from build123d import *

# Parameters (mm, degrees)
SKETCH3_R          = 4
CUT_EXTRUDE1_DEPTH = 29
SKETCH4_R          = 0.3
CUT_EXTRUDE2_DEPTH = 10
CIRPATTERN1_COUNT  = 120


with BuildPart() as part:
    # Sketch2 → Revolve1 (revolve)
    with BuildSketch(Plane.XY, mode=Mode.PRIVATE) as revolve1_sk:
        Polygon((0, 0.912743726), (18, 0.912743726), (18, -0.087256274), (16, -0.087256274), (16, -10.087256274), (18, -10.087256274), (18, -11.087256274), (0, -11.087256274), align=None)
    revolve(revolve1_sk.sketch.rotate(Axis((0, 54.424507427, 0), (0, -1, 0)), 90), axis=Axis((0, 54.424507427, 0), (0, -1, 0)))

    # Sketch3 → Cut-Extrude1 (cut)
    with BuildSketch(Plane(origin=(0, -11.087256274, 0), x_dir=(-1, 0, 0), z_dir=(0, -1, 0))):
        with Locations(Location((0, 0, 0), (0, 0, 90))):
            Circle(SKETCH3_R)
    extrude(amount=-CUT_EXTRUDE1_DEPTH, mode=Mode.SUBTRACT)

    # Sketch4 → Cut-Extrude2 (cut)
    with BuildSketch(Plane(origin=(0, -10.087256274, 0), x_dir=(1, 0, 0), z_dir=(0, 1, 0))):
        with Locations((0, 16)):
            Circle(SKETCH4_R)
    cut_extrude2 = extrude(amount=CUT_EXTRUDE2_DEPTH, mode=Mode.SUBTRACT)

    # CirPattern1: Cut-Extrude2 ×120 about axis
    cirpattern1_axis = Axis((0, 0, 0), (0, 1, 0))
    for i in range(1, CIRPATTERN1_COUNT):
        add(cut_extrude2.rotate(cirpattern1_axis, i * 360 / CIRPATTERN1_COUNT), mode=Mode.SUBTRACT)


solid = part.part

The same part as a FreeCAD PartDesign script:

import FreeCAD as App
import Part
import Sketcher


def add_polygon(sketch, points):
    """Adds a closed chain of lines whose ends are joined by coincident constraints."""
    first, n = sketch.GeometryCount, len(points)
    for a, b in zip(points, points[1:] + points[:1]):
        sketch.addGeometry(Part.LineSegment(App.Vector(*a, 0), App.Vector(*b, 0)), False)
    for i in range(n):
        sketch.addConstraint(Sketcher.Constraint("Coincident", first + i, 2, first + (i + 1) % n, 1))

doc = App.newDocument("Part")
body = doc.addObject("PartDesign::Body", "Body")

# Sketch on XY plane
sketch1 = doc.addObject("Sketcher::SketchObject", "Sketch")
body.addObject(sketch1)
sketch1.AttachmentSupport = (doc.XY_Plane, [""])
sketch1.MapMode = "FlatFace"
add_polygon(sketch1, [(18, 0.9), (0, 0.9), (0, -11.1), (18, -11.1), (18, -10.1), (16, -10.1), (16, -0.1), (18, -0.1)])  # lines 0-7
sketch1.addConstraint(Sketcher.Constraint("Horizontal", 0))
sketch1.addConstraint(Sketcher.Constraint("Vertical", 1))
sketch1.addConstraint(Sketcher.Constraint("Horizontal", 2))
sketch1.addConstraint(Sketcher.Constraint("Vertical", 3))
sketch1.addConstraint(Sketcher.Constraint("Horizontal", 4))
sketch1.addConstraint(Sketcher.Constraint("Vertical", 5))
sketch1.addConstraint(Sketcher.Constraint("Horizontal", 6))
sketch1.addConstraint(Sketcher.Constraint("Vertical", 7))
sketch1.addConstraint(Sketcher.Constraint("PointOnObject", 0, 2, -2))
sketch1.addConstraint(Sketcher.Constraint("Vertical", 3, 2, 6, 2))
sketch1.addConstraint(Sketcher.Constraint("Equal", 3, 7))
sketch1.addConstraint(Sketcher.Constraint("DistanceX", 0, 2, 0, 1, 18.0))
sketch1.addConstraint(Sketcher.Constraint("DistanceX", 4, 2, 4, 1, 2.0))
sketch1.addConstraint(Sketcher.Constraint("DistanceY", 1, 2, 1, 1, 12.0))
sketch1.addConstraint(Sketcher.Constraint("DistanceY", 3, 1, 3, 2, 1.0))
sketch1.addConstraint(Sketcher.Constraint("DistanceY", -1, 1, 0, 2, 0.912744))
revolution = doc.addObject("PartDesign::Revolution", "Revolution")
body.addObject(revolution)
revolution.Profile = sketch1
revolution.ReferenceAxis = (sketch1, ["V_Axis"])
revolution.Angle = 360

# Sketch on XZ plane
sketch2 = doc.addObject("Sketcher::SketchObject", "Sketch001")
body.addObject(sketch2)
sketch2.AttachmentSupport = (doc.XZ_Plane, [""])
sketch2.MapMode = "FlatFace"
sketch2.AttachmentOffset = App.Placement(App.Vector(0, 0, 11.087256), App.Rotation())
sketch2.addGeometry(Part.Circle(App.Vector(0, 0, 0), App.Vector(0, 0, 1), 4), False)
sketch2.addConstraint(Sketcher.Constraint("Coincident", 0, 3, -1, 1))
sketch2.addConstraint(Sketcher.Constraint("Diameter", 0, 8.0))
pocket1 = doc.addObject("PartDesign::Pocket", "Pocket")
body.addObject(pocket1)
pocket1.Profile = sketch2
pocket1.Length = 29

# Sketch on XZ plane
sketch3 = doc.addObject("Sketcher::SketchObject", "Sketch002")
body.addObject(sketch3)
sketch3.AttachmentSupport = (doc.XZ_Plane, [""])
sketch3.MapMode = "FlatFace"
sketch3.AttachmentOffset = App.Placement(App.Vector(0, 0, 10.087256), App.Rotation())
sketch3.addGeometry(Part.Circle(App.Vector(0, -16, 0), App.Vector(0, 0, 1), 0.3), False)
sketch3.addConstraint(Sketcher.Constraint("PointOnObject", 0, 3, -2))
sketch3.addConstraint(Sketcher.Constraint("Diameter", 0, 0.6))
sketch3.addConstraint(Sketcher.Constraint("DistanceY", 0, 3, -1, 1, 16.0))
pocket2 = doc.addObject("PartDesign::Pocket", "Pocket001")
body.addObject(pocket2)
pocket2.Profile = sketch3
pocket2.Length = 10
doc.recompute()

polarpattern = doc.addObject("PartDesign::PolarPattern", "PolarPattern")
body.addObject(polarpattern)
polarpattern.Originals = [pocket2]
polarpattern.Axis = (doc.Y_Axis, [""])
polarpattern.Angle = 360
polarpattern.Occurrences = 120
body.Tip = polarpattern

doc.recompute()
